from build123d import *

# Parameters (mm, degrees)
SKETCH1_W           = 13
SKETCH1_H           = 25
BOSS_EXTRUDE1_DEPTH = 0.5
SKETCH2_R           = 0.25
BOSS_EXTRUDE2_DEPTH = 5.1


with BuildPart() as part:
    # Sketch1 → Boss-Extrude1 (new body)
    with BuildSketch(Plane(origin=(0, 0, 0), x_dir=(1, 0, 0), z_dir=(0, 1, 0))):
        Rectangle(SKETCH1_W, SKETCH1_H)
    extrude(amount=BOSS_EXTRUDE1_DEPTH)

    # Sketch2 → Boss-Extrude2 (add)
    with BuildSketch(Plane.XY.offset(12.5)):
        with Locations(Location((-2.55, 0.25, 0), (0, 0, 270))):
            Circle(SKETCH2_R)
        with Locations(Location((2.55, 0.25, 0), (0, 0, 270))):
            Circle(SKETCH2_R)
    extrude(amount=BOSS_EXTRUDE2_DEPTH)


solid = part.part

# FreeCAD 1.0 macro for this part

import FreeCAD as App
import Part
import Sketcher

V = App.Vector
Q = App.Units.Quantity


def add_polygon(sketch, points):
    """Adds a closed chain of lines whose ends are joined by coincident constraints."""
    first, n = sketch.GeometryCount, len(points)
    for a, b in zip(points, points[1:] + points[:1]):
        sketch.addGeometry(Part.LineSegment(App.Vector(*a, 0), App.Vector(*b, 0)), False)
    for i in range(n):
        sketch.addConstraint(Sketcher.Constraint("Coincident", first + i, 2, first + (i + 1) % n, 1))

doc = App.newDocument("Part")
body = doc.addObject("PartDesign::Body", "Body")

# Sketch on XZ plane
sketch1 = doc.addObject("Sketcher::SketchObject", "Sketch")
body.addObject(sketch1)
sketch1.AttachmentSupport = (doc.XZ_Plane, [""])
sketch1.MapMode = "FlatFace"
add_polygon(sketch1, [(-6, -12), (-6, 12), (6, 12), (6, -12)])  # lines 0-3
sketch1.addConstraint(Sketcher.Constraint("Vertical", 0))
sketch1.addConstraint(Sketcher.Constraint("Horizontal", 1))
sketch1.addConstraint(Sketcher.Constraint("Vertical", 2))
sketch1.addConstraint(Sketcher.Constraint("Horizontal", 3))
sketch1.addConstraint(Sketcher.Constraint("Symmetric", 0, 2, 2, 2, -1, 1))
sketch1.addConstraint(Sketcher.Constraint("DistanceX", 1, 1, 1, 2, Q("13 mm")))
sketch1.addConstraint(Sketcher.Constraint("DistanceY", 0, 1, 0, 2, Q("25 mm")))
pad1 = doc.addObject("PartDesign::Pad", "Pad")
body.addObject(pad1)
pad1.Profile = sketch1
pad1.Length = 0.5
pad1.Reversed = True

# Sketch on XY plane
sketch2 = doc.addObject("Sketcher::SketchObject", "Sketch001")
body.addObject(sketch2)
sketch2.AttachmentSupport = (doc.XY_Plane, [""])
sketch2.MapMode = "FlatFace"
sketch2.AttachmentOffset = App.Placement(V(0, 0, 12.5), App.Rotation())
sketch2.addGeometry(Part.Circle(V(-2.55, 0.25, 0), V(0, 0, 1), 0.25), False)
sketch2.addGeometry(Part.Circle(V(2.55, 0.25, 0), V(0, 0, 1), 0.25), False)
sketch2.addConstraint(Sketcher.Constraint("Equal", 0, 1))
sketch2.addConstraint(Sketcher.Constraint("Symmetric", 0, 3, 1, 3, -2))
sketch2.addConstraint(Sketcher.Constraint("Diameter", 0, Q("0.5 mm")))
sketch2.addConstraint(Sketcher.Constraint("DistanceX", 0, 3, 1, 3, Q("5.1 mm")))
sketch2.addConstraint(Sketcher.Constraint("DistanceY", -1, 1, 0, 3, Q("0.25 mm")))
pad2 = doc.addObject("PartDesign::Pad", "Pad001")
body.addObject(pad2)
pad2.Profile = sketch2
pad2.Length = 5.1

doc.recompute()
